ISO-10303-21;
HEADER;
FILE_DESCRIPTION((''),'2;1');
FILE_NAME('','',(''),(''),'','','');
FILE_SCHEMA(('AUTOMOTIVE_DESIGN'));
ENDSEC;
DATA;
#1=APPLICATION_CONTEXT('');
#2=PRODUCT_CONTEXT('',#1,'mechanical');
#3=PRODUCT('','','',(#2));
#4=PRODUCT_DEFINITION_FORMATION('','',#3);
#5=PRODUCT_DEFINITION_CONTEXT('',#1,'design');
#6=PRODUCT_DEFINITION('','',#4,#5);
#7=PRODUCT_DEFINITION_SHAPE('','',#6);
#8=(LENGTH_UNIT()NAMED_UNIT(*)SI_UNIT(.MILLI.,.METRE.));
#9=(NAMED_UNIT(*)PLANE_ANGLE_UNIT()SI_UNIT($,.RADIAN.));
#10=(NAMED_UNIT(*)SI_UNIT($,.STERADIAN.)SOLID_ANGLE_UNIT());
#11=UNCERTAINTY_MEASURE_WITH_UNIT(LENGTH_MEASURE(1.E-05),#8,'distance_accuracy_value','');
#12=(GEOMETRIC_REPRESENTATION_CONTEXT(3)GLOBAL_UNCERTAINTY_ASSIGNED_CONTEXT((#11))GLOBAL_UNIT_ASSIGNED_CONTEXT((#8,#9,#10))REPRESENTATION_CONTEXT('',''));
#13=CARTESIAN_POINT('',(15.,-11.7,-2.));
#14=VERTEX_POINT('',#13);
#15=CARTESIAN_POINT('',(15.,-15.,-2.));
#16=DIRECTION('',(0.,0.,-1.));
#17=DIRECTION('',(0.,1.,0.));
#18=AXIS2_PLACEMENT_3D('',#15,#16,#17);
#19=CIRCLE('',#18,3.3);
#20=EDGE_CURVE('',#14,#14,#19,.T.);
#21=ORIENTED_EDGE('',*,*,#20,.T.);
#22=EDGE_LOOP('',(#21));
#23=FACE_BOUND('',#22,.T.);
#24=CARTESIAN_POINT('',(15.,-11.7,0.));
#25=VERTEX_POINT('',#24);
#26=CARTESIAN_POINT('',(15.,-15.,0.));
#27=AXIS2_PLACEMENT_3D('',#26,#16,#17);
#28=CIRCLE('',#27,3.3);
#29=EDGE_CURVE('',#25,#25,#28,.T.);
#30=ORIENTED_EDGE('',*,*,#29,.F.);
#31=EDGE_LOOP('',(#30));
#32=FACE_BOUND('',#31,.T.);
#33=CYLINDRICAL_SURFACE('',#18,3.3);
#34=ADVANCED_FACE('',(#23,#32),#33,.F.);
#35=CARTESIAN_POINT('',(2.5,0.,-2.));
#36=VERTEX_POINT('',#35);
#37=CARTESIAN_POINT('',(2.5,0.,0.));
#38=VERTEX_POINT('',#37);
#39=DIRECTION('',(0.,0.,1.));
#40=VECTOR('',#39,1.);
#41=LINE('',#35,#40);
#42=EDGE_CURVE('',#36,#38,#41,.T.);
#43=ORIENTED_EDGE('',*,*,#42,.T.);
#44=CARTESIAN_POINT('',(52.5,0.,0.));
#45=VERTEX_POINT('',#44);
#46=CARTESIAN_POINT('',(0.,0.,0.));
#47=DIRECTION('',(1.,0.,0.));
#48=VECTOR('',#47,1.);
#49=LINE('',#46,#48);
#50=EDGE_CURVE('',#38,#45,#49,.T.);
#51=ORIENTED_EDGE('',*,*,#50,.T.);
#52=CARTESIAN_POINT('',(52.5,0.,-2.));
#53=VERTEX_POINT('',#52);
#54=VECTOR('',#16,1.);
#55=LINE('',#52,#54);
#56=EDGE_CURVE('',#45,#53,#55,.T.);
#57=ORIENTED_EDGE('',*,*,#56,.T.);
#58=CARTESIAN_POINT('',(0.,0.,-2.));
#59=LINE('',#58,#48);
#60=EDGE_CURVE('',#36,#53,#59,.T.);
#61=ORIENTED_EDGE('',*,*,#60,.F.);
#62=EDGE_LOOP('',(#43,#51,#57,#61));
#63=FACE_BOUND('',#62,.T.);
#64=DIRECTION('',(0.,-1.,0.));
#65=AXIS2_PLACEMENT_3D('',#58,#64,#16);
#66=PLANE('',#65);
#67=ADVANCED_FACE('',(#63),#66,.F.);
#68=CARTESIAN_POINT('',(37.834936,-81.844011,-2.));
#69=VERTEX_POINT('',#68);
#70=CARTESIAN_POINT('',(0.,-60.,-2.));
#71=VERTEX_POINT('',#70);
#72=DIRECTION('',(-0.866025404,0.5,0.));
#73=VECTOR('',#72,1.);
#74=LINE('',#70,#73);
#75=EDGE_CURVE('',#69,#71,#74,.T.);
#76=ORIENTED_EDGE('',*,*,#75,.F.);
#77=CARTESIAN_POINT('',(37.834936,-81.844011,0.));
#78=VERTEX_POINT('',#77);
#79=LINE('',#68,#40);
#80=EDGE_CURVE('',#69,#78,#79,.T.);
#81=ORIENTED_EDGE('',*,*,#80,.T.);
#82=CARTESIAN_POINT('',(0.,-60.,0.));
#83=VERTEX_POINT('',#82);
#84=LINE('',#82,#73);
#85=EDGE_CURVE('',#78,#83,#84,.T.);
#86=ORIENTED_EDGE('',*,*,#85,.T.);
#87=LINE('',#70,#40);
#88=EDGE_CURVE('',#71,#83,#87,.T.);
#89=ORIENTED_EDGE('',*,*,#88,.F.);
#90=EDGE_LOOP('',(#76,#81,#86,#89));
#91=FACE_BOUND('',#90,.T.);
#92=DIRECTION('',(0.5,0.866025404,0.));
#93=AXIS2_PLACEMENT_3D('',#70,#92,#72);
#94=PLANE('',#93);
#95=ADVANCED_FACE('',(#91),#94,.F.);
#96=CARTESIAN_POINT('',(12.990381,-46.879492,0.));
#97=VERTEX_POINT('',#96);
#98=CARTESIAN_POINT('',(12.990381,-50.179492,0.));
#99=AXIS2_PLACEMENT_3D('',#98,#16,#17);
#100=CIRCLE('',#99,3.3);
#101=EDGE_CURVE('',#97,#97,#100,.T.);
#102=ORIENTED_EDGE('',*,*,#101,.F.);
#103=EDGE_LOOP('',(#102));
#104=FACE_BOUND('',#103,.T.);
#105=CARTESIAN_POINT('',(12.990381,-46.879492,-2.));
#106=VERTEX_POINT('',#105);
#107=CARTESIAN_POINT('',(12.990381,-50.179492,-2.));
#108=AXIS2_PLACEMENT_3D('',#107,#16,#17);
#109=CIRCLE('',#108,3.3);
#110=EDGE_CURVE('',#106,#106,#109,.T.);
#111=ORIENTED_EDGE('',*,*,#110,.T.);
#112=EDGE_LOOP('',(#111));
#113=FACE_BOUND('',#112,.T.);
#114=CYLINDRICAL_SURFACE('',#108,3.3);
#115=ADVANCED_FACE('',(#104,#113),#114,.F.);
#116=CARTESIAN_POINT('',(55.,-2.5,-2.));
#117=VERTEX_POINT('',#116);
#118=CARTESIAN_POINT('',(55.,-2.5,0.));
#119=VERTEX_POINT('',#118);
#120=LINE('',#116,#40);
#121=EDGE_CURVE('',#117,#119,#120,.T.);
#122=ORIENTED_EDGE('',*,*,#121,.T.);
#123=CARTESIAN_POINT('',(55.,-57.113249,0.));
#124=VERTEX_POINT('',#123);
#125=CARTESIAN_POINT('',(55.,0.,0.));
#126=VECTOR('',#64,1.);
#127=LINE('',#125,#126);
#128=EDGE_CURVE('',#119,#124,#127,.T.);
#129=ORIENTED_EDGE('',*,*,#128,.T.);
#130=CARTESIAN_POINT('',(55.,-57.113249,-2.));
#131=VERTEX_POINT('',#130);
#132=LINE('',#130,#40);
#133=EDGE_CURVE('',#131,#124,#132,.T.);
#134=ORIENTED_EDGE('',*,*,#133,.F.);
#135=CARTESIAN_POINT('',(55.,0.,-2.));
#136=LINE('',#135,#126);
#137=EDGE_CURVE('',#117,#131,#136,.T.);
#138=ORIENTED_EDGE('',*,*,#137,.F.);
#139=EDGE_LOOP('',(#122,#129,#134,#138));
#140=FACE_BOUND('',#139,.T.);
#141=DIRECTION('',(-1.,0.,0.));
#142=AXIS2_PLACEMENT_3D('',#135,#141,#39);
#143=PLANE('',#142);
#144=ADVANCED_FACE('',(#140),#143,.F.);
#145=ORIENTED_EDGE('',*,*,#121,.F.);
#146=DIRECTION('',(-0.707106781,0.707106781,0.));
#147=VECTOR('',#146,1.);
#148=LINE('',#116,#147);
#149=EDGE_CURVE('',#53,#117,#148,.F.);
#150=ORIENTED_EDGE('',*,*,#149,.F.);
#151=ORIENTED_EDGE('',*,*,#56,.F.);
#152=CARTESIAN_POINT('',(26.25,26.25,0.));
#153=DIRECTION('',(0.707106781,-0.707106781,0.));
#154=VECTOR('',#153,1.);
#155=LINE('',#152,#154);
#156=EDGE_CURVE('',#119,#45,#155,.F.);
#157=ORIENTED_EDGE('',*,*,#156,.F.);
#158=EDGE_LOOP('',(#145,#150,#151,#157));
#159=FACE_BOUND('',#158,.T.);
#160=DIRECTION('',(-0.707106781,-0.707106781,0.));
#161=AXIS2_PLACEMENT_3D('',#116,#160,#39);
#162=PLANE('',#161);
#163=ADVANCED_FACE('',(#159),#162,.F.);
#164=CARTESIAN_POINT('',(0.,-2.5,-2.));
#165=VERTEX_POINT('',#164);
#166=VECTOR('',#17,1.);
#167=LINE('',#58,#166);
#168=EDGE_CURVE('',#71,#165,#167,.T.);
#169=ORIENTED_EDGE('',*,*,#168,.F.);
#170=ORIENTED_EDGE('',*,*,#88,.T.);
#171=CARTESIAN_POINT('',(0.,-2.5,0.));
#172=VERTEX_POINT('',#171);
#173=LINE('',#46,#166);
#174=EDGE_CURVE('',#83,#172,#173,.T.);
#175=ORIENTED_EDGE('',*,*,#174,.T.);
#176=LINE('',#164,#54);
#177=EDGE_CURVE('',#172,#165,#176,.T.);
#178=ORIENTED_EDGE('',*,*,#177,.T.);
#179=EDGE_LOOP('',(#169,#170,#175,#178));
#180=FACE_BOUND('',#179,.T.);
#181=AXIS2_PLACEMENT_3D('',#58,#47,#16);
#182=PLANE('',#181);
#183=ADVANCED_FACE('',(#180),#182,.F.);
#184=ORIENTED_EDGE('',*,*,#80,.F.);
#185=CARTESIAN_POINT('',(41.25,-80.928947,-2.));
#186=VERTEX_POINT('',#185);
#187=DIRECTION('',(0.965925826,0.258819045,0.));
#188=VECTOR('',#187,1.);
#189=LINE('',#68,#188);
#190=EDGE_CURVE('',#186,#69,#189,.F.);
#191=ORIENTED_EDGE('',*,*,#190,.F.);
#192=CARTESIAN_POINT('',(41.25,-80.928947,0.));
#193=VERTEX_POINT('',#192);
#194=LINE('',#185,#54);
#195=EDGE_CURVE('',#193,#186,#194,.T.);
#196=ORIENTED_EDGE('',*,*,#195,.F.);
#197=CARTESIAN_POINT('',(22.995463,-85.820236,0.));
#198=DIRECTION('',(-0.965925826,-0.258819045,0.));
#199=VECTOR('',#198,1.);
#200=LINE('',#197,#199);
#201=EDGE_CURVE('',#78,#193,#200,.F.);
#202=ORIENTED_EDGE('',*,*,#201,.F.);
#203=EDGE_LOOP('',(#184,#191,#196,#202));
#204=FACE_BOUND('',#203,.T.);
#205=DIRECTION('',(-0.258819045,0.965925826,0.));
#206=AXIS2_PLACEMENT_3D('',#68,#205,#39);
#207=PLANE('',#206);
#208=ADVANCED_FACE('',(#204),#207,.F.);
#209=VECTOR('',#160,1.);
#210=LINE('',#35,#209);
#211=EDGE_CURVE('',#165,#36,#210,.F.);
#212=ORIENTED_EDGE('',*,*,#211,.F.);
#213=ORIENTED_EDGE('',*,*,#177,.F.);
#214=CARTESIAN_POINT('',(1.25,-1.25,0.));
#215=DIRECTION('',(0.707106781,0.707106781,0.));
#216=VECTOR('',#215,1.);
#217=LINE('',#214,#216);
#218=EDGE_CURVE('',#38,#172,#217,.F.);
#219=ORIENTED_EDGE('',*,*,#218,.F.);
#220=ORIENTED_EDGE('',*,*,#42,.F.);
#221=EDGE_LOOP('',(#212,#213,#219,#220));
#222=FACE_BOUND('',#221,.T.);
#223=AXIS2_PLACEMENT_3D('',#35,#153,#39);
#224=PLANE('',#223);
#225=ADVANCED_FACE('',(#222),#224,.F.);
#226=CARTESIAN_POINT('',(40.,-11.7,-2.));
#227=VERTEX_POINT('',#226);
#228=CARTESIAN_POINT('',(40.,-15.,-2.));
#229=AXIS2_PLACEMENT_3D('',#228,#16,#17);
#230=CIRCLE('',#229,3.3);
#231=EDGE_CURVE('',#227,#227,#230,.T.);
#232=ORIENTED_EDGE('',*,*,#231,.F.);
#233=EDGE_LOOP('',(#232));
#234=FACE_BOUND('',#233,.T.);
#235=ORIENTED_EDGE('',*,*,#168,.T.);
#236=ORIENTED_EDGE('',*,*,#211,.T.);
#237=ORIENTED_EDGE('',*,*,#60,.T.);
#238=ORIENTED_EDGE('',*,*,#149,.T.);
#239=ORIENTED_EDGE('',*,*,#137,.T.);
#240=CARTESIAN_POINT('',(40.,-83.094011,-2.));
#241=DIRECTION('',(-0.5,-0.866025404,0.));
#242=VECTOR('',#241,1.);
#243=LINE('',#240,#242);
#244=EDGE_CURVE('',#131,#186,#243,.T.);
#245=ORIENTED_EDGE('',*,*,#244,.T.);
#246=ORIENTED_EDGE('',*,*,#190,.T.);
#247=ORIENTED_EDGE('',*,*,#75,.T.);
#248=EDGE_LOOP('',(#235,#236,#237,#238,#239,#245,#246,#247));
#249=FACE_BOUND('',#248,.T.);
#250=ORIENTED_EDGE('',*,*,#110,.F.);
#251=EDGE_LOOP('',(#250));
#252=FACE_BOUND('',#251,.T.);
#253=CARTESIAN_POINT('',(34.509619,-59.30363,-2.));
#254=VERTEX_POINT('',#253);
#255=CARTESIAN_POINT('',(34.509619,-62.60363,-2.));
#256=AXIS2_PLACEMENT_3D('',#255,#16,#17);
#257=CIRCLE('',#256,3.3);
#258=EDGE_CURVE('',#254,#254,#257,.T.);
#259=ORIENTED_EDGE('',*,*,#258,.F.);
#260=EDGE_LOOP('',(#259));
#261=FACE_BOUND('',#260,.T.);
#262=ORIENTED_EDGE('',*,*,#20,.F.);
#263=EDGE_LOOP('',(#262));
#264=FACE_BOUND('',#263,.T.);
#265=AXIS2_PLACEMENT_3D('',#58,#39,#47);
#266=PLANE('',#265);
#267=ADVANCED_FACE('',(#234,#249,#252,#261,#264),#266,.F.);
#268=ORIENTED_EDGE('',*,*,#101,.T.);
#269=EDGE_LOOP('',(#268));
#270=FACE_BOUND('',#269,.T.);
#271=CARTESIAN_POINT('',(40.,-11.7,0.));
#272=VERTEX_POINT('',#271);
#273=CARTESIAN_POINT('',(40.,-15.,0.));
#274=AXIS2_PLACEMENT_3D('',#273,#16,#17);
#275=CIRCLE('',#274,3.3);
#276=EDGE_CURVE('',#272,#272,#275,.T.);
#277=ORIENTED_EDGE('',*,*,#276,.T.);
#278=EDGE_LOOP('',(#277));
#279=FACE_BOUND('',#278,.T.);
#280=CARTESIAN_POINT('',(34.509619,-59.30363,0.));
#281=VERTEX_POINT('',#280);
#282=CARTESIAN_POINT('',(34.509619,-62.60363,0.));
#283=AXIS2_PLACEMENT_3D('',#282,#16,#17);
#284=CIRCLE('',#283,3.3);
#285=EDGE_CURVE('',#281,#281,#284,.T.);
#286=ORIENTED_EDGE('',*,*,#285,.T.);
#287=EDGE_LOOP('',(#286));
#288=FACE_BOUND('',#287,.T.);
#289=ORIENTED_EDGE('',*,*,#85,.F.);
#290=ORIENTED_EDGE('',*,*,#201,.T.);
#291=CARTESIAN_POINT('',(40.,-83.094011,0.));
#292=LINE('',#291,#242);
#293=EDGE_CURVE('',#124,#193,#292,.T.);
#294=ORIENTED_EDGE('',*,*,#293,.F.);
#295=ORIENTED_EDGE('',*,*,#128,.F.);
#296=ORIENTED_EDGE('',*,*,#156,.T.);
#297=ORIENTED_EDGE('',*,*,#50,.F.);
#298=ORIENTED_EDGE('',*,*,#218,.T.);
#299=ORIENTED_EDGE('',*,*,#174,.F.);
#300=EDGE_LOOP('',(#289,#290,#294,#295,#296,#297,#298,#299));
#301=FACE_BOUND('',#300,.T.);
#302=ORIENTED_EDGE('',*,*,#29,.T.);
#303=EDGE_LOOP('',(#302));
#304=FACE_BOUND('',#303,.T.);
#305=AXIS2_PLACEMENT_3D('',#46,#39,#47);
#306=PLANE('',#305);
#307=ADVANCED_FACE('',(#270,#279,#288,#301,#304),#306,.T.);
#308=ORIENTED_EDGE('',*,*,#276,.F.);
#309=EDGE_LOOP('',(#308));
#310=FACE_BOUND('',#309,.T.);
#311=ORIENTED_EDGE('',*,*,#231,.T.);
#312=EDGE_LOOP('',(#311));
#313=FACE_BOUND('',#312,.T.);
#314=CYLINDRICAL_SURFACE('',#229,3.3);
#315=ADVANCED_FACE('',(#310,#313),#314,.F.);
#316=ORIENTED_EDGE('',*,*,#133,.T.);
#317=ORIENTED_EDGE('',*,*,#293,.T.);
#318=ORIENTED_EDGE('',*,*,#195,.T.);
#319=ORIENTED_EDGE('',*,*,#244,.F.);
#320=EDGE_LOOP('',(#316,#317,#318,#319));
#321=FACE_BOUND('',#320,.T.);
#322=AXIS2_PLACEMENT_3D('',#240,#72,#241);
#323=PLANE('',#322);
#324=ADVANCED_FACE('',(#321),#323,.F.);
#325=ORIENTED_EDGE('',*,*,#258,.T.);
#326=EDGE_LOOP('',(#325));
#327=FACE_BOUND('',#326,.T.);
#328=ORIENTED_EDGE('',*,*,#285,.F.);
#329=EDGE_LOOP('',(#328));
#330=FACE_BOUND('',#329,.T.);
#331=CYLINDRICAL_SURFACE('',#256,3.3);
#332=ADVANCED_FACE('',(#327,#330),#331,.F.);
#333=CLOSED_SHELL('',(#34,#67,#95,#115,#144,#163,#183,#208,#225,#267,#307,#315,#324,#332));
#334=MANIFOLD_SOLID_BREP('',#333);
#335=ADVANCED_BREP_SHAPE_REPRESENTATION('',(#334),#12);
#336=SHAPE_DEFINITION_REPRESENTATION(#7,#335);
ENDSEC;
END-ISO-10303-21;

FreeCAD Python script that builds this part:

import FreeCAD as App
import Part
import Sketcher

V = App.Vector
Q = App.Units.Quantity


def edges_at(feature, points):
    """Names of the edges that pass closest to the given points."""
    edges = feature.Shape.Edges
    near = lambda p: min(range(len(edges)), key=lambda i: edges[i].distToShape(Part.Vertex(*p))[0])
    return sorted({f"Edge{near(p) + 1}" for p in points})


def add_polygon(sketch, points):
    """Adds a closed chain of lines whose ends are joined by coincident constraints."""
    first, n = sketch.GeometryCount, len(points)
    for a, b in zip(points, points[1:] + points[:1]):
        sketch.addGeometry(Part.LineSegment(App.Vector(*a, 0), App.Vector(*b, 0)), False)
    for i in range(n):
        sketch.addConstraint(Sketcher.Constraint("Coincident", first + i, 2, first + (i + 1) % n, 1))

doc = App.newDocument("Part")
body = doc.addObject("PartDesign::Body", "Body")

# Sketch on XY plane
sketch1 = body.newObject("Sketcher::SketchObject", "Sketch")
sketch1.AttachmentSupport = (doc.getObject("XY_Plane"), [""])
sketch1.MapMode = "FlatFace"
add_polygon(sketch1, [(0, 0), (55, 0), (55, -57.113249), (40, -83.094011), (0, -60)])  # lines 0-4
sketch1.addConstraint([
    Sketcher.Constraint("Horizontal", 0),
    Sketcher.Constraint("Vertical", 1),
    Sketcher.Constraint("Vertical", 4),
    Sketcher.Constraint("Coincident", 4, 2, -1, 1),
    Sketcher.Constraint("Perpendicular", 2, 3),
    Sketcher.Constraint("DistanceX", 0, 1, 0, 2, Q("55 mm")),
    Sketcher.Constraint("DistanceY", 4, 1, 4, 2, Q("60 mm")),
    Sketcher.Constraint("Angle", 2, Q("-120 deg")),
    Sketcher.Constraint("Distance", 2, Q("30 mm")),
])
pad1 = body.newObject("PartDesign::Pad", "Pad")
pad1.Profile = sketch1
pad1.Length = 2
pad1.Reversed = True

# Sketch on XY plane
sketch2 = body.newObject("Sketcher::SketchObject", "Sketch001")
sketch2.AttachmentSupport = (doc.getObject("XY_Plane"), [""])
sketch2.MapMode = "FlatFace"
sketch2.AttachmentOffset = App.Placement(V(0, 0, -2), App.Rotation())
sketch2.addGeometry([
    Part.Circle(V(15, -15, 0), V(0, 0, 1), 3.3),
    Part.Circle(V(40, -15, 0), V(0, 0, 1), 3.3),
    Part.Circle(V(12.990381, -50.179492, 0), V(0, 0, 1), 3.3),
    Part.Circle(V(34.509619, -62.60363, 0), V(0, 0, 1), 3.3),
], False)
sketch2.addConstraint([
    Sketcher.Constraint("Equal", 0, 1),
    Sketcher.Constraint("Equal", 1, 2),
    Sketcher.Constraint("Equal", 2, 3),
    Sketcher.Constraint("Horizontal", 0, 3, 1, 3),
    Sketcher.Constraint("Diameter", 0, Q("6.6 mm")),
    Sketcher.Constraint("DistanceX", -1, 1, 0, 3, Q("15 mm")),
    Sketcher.Constraint("DistanceY", 0, 3, -1, 1, Q("15 mm")),
    Sketcher.Constraint("DistanceX", -1, 1, 1, 3, Q("40 mm")),
    Sketcher.Constraint("DistanceX", -1, 1, 2, 3, Q("12.990381 mm")),
    Sketcher.Constraint("DistanceY", 2, 3, -1, 1, Q("50.179492 mm")),
    Sketcher.Constraint("DistanceX", -1, 1, 3, 3, Q("34.509619 mm")),
    Sketcher.Constraint("DistanceY", 3, 3, -1, 1, Q("62.60363 mm")),
])
doc.recompute()
hole = body.newObject("PartDesign::Hole", "Hole")
hole.Profile = sketch2
hole.ThreadType = "None"
hole.Diameter = 6.6
hole.DepthType = "ThroughAll"
hole.Reversed = True
doc.recompute()

chamfer = body.newObject("PartDesign::Chamfer", "Chamfer")
chamfer.Base = (hole, edges_at(hole, [(40, -83.094, -1), (55, 0, -1), (0, 0, -1)]))
chamfer.Size = 2.5

doc.recompute()
